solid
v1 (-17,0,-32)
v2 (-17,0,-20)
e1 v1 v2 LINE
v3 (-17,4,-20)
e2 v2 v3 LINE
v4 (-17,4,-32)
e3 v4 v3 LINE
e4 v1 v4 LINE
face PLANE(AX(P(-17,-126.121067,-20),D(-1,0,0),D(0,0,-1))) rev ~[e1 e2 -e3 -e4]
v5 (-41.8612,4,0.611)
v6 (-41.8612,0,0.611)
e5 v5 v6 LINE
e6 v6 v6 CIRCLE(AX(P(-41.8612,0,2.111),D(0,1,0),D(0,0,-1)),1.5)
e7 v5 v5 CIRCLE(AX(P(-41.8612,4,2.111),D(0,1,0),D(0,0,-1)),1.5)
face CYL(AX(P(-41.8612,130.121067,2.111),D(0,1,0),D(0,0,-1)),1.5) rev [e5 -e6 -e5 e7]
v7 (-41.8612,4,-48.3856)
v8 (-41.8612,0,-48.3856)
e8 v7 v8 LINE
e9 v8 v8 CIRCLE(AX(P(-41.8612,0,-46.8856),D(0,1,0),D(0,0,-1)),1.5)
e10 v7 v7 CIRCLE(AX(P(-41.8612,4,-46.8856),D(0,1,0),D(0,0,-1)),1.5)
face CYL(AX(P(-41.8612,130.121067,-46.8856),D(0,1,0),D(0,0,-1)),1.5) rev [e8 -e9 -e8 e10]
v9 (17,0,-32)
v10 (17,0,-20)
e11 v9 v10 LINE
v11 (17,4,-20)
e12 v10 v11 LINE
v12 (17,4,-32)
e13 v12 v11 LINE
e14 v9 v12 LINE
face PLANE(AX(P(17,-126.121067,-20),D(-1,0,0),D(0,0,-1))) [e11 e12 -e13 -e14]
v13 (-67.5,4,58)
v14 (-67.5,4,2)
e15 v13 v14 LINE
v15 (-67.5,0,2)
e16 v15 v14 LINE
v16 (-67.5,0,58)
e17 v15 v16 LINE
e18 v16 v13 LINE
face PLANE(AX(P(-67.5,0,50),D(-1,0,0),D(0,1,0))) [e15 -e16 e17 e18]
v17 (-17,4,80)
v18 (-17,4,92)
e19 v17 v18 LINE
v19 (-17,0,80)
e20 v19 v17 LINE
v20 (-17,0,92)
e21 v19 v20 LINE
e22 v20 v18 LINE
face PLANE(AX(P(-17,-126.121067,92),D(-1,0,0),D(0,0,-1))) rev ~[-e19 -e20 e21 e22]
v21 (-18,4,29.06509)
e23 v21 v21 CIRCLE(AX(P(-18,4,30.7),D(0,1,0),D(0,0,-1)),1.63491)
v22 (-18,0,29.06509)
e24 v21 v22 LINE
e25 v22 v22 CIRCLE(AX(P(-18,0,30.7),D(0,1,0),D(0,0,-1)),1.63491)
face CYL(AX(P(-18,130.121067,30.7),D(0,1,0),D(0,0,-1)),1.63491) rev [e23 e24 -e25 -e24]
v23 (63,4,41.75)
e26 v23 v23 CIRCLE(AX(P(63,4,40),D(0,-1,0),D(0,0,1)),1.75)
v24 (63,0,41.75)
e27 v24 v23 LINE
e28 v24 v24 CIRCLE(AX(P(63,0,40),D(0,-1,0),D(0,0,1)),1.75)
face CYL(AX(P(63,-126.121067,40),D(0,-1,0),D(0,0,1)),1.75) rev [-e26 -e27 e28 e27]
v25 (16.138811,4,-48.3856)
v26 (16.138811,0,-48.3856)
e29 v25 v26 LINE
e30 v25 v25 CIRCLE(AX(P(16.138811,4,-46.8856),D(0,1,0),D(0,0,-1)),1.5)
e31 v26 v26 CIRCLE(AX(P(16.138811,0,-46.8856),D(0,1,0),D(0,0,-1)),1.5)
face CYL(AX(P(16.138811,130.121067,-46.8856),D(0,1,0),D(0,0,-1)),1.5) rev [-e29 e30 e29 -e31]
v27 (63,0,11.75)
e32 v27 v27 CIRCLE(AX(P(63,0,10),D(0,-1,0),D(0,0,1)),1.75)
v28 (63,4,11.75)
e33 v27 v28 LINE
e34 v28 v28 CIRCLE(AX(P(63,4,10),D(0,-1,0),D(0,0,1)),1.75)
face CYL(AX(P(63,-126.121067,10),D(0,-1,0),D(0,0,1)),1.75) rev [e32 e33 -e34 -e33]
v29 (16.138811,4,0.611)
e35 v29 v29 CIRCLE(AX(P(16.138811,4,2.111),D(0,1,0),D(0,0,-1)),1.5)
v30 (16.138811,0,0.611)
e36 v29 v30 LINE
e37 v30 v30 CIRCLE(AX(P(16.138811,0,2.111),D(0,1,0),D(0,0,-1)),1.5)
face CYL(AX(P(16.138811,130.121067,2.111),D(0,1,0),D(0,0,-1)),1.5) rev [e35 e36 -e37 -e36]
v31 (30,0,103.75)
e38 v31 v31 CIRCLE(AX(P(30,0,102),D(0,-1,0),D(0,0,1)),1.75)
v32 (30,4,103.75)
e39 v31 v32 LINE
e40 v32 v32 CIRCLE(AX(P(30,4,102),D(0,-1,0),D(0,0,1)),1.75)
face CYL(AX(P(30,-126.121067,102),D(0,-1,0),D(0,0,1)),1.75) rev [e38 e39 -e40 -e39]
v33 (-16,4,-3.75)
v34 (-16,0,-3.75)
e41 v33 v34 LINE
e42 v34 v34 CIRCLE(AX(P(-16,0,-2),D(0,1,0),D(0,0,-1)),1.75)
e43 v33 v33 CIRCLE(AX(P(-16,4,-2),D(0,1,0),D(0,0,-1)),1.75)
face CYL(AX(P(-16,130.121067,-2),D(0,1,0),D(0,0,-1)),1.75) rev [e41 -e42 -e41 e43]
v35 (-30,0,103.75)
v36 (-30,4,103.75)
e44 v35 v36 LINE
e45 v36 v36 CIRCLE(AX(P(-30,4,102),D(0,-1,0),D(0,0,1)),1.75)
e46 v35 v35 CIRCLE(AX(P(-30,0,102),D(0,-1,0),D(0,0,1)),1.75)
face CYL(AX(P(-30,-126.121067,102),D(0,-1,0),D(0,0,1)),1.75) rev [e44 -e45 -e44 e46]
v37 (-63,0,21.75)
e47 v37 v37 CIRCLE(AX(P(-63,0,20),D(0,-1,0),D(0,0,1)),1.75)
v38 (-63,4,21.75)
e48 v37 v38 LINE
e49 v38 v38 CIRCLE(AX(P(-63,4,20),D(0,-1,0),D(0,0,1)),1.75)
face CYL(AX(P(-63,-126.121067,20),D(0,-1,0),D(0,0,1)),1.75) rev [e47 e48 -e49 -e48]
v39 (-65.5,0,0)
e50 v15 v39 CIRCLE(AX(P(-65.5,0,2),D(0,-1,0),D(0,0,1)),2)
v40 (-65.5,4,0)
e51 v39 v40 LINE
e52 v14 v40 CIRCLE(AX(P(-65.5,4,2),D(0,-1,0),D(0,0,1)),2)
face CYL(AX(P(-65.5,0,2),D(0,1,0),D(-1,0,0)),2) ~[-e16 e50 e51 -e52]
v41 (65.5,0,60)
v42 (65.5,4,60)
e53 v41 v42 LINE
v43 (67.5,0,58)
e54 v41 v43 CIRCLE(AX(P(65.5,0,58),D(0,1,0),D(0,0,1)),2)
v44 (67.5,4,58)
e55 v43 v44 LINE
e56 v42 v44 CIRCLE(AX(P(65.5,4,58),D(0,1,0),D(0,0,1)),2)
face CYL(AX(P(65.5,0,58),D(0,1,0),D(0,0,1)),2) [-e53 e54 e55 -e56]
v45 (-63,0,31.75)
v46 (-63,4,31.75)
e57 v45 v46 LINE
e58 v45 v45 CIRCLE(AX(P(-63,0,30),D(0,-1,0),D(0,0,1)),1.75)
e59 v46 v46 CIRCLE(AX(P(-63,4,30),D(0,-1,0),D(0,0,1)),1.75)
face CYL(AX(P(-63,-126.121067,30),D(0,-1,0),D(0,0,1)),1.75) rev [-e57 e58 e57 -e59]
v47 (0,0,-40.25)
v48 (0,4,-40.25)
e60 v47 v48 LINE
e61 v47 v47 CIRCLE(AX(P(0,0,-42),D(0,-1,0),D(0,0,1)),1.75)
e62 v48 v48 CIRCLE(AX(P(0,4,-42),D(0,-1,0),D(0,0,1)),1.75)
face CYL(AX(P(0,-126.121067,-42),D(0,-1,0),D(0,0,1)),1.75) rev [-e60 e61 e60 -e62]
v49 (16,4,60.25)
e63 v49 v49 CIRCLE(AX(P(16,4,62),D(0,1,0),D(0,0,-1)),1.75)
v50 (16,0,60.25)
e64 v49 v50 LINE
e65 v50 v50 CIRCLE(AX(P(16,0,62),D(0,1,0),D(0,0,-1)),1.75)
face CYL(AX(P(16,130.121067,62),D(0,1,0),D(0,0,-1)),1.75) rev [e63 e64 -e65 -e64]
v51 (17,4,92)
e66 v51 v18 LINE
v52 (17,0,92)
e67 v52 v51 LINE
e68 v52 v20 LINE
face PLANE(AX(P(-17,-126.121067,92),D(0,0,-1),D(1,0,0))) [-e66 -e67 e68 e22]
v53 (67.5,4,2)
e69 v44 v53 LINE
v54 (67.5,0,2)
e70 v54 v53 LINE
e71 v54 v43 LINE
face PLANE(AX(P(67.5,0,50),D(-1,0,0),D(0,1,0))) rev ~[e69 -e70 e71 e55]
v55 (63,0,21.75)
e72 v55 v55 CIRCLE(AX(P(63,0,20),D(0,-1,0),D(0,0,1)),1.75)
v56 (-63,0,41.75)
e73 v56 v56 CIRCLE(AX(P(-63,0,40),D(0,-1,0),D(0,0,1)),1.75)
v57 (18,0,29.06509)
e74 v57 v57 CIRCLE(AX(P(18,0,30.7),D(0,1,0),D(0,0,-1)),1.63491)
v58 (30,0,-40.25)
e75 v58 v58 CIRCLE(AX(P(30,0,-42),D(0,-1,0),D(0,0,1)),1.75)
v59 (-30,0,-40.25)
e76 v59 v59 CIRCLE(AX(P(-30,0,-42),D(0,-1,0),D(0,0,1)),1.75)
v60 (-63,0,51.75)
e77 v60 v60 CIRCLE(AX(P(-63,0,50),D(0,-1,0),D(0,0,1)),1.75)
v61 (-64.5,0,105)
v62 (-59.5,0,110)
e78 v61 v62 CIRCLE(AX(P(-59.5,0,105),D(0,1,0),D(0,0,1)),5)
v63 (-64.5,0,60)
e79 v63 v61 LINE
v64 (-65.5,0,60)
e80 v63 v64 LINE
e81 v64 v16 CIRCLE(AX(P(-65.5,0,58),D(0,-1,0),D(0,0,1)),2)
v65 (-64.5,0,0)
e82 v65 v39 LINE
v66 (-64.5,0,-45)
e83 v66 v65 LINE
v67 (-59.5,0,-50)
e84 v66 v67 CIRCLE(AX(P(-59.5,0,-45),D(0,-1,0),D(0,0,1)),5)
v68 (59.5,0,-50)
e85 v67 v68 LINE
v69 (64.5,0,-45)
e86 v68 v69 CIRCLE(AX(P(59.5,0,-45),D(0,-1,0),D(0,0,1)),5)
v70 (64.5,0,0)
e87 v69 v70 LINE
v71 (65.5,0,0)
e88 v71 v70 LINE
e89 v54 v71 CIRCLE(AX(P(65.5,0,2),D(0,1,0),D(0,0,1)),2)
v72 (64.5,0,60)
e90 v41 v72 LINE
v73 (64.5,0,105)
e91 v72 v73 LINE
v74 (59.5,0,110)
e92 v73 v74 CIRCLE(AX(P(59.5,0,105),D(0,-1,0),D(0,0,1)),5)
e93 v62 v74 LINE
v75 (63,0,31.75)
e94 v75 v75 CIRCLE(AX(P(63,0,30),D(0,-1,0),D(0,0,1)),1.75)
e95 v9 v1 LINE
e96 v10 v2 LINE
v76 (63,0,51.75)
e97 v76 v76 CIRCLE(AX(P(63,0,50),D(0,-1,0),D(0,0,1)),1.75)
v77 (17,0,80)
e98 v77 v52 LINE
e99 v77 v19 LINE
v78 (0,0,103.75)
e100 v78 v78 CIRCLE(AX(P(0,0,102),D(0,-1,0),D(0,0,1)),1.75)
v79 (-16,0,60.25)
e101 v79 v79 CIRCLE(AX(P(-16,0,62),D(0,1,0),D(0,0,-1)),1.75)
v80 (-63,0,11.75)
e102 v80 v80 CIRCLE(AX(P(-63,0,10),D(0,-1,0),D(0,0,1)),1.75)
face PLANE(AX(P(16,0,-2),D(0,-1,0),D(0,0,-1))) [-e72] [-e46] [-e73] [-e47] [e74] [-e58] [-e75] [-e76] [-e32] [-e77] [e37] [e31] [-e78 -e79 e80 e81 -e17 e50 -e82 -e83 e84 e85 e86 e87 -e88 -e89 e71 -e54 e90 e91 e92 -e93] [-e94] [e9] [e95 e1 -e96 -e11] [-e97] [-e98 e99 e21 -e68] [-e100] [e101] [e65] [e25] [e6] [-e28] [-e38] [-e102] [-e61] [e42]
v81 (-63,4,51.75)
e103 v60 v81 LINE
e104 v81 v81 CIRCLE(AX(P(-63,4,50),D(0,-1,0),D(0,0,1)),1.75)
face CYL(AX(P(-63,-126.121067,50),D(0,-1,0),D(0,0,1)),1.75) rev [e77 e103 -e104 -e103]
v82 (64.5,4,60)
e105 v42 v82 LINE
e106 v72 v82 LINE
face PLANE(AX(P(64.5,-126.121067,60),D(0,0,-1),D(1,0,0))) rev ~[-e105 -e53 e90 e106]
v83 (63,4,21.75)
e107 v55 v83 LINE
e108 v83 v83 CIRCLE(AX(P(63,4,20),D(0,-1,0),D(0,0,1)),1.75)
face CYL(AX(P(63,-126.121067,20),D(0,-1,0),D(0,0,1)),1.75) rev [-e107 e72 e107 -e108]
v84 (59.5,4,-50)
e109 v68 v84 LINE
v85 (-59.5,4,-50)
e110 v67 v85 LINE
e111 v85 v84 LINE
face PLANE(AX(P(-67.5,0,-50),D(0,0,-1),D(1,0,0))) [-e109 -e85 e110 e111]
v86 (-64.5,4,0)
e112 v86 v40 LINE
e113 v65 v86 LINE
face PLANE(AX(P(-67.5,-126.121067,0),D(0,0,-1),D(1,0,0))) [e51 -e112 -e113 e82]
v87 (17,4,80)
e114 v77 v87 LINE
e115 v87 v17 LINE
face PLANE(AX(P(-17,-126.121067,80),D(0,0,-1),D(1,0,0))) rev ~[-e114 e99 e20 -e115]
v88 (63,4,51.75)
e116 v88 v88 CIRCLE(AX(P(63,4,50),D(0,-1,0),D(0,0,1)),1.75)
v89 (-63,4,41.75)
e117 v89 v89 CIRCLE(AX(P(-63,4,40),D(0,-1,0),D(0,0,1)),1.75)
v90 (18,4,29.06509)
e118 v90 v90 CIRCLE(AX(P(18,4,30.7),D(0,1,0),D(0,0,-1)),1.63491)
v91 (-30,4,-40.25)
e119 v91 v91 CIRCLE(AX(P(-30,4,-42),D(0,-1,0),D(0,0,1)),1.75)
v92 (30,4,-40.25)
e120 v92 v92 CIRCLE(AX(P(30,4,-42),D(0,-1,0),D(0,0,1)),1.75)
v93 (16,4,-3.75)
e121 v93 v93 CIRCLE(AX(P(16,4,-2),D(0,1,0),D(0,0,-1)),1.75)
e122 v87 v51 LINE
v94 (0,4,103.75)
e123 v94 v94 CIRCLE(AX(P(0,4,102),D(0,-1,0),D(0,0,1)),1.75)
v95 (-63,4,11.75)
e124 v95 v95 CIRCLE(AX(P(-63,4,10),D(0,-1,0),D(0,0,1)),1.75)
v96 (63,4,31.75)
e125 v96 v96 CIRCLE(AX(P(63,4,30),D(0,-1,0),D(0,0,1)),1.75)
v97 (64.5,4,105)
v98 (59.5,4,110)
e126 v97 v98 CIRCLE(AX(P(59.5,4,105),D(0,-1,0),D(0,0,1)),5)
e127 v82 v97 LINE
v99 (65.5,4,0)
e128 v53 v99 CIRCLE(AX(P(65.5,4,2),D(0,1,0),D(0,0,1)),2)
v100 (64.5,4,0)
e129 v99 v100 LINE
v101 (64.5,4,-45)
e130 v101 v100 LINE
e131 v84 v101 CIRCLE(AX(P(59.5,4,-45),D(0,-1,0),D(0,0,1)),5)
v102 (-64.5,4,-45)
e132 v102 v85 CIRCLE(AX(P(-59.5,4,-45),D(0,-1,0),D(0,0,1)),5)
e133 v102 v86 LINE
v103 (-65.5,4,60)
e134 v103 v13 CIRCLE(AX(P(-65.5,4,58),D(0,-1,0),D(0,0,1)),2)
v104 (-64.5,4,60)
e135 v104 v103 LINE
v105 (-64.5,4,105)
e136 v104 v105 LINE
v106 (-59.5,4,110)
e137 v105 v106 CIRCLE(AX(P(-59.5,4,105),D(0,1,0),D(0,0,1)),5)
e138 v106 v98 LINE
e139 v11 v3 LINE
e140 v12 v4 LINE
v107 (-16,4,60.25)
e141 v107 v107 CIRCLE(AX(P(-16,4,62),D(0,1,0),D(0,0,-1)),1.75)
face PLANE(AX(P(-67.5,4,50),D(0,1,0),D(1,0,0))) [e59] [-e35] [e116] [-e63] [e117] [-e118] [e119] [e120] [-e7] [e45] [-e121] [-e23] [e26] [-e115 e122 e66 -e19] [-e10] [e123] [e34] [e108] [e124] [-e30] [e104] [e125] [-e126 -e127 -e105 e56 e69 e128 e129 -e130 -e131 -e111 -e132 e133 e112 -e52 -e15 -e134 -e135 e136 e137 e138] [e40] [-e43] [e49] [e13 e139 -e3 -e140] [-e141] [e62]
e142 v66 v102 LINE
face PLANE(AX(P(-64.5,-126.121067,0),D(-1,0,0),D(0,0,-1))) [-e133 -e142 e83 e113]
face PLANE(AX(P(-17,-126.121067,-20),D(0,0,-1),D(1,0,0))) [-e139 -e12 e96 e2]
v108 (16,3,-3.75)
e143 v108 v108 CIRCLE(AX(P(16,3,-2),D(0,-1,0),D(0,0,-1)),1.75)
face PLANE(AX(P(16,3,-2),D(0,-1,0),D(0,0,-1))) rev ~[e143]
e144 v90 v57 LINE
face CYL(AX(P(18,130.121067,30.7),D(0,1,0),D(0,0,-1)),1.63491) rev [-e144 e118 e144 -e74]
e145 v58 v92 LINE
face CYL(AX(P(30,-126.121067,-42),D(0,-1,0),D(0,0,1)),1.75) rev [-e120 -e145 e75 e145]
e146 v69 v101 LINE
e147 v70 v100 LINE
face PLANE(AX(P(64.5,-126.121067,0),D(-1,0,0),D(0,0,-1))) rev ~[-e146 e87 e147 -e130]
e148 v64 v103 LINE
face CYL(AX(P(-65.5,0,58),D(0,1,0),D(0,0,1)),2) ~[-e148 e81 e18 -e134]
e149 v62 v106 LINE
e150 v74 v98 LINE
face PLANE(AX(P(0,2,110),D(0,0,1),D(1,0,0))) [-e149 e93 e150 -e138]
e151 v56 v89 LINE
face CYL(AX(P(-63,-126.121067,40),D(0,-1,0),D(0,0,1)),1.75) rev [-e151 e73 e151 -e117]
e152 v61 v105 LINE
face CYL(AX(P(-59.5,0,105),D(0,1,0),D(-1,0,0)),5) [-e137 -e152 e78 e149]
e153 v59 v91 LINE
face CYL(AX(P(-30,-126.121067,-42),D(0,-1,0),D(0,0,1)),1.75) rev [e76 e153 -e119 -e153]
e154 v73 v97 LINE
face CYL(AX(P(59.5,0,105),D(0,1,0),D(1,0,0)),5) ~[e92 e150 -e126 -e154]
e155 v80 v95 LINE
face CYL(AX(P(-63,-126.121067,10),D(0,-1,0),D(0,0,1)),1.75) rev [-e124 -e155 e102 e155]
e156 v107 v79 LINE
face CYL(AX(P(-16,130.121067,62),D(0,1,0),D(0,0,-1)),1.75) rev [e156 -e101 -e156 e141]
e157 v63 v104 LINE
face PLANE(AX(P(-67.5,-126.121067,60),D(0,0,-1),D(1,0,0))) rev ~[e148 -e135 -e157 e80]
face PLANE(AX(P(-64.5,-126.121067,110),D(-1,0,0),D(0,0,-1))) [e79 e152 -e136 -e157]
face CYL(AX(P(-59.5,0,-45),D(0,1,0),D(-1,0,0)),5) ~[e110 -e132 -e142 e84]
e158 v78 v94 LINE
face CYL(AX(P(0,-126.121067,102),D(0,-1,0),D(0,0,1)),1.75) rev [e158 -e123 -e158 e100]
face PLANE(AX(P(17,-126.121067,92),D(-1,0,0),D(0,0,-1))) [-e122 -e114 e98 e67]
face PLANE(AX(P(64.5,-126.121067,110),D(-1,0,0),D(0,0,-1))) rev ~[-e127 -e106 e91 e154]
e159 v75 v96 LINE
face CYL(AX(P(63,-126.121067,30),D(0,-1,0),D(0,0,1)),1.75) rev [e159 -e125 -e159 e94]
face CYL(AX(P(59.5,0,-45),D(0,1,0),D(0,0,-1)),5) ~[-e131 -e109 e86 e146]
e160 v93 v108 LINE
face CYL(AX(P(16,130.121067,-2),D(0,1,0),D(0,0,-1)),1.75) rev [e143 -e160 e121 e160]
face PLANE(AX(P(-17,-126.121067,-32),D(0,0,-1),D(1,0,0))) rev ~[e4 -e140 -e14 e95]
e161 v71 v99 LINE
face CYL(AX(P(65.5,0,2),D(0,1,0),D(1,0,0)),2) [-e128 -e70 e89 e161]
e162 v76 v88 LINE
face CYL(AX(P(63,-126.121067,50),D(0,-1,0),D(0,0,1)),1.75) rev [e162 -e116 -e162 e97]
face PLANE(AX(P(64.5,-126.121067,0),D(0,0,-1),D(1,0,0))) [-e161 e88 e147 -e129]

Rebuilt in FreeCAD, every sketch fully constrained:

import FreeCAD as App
import Part
import Sketcher
Q = App.Units.Quantity


def edges_at(feature, points):
    """Names of the edges that pass closest to the given points."""
    edges = feature.Shape.Edges
    near = lambda p: min(range(len(edges)), key=lambda i: edges[i].distToShape(Part.Vertex(*p))[0])
    return sorted({f"Edge{near(p) + 1}" for p in points})

doc = App.newDocument("Part")
body = doc.addObject("PartDesign::Body", "Body")

sketch1 = doc.addObject("Sketcher::SketchObject", "Sketch")
body.addObject(sketch1)
sketch1.AttachmentSupport = (doc.XZ_Plane, [""])
sketch1.MapMode = "FlatFace"
sketch1.addGeometry(Part.LineSegment(App.Vector(-68, -50, 0), App.Vector(-68, 50, 0)), False)
sketch1.addGeometry(Part.LineSegment(App.Vector(-68, 50, 0), App.Vector(68, 50, 0)), False)
sketch1.addGeometry(Part.LineSegment(App.Vector(68, 50, 0), App.Vector(68, -50, 0)), False)
sketch1.addGeometry(Part.LineSegment(App.Vector(68, -50, 0), App.Vector(-68, -50, 0)), False)
sketch1.addConstraint(Sketcher.Constraint("Coincident", 0, 2, 1, 1))
sketch1.addConstraint(Sketcher.Constraint("Coincident", 1, 2, 2, 1))
sketch1.addConstraint(Sketcher.Constraint("Coincident", 2, 2, 3, 1))
sketch1.addConstraint(Sketcher.Constraint("Coincident", 3, 2, 0, 1))
sketch1.addConstraint(Sketcher.Constraint("Vertical", 0))
sketch1.addConstraint(Sketcher.Constraint("Horizontal", 1))
sketch1.addConstraint(Sketcher.Constraint("Vertical", 2))
sketch1.addConstraint(Sketcher.Constraint("Horizontal", 3))
sketch1.addConstraint(Sketcher.Constraint("Symmetric", 0, 2, 2, 2, -1, 1))
sketch1.addConstraint(Sketcher.Constraint("DistanceX", 1, 1, 1, 2, Q("135 mm")))
sketch1.addConstraint(Sketcher.Constraint("DistanceY", 0, 1, 0, 2, Q("100 mm")))
pad1 = doc.addObject("PartDesign::Pad", "Pad")
body.addObject(pad1)
pad1.Profile = sketch1
pad1.Length = 4
pad1.Reversed = True

sketch2 = doc.addObject("Sketcher::SketchObject", "Sketch001")
body.addObject(sketch2)
sketch2.AttachmentSupport = (doc.XY_Plane, [""])
sketch2.MapMode = "FlatFace"
sketch2.AttachmentOffset = App.Placement(App.Vector(0, 0, 50), App.Rotation())
sketch2.addGeometry(Part.LineSegment(App.Vector(-67.5, 4, 0), App.Vector(-67.5, 0, 0)), False)
sketch2.addGeometry(Part.LineSegment(App.Vector(-67.5, 0, 0), App.Vector(67.5, 0, 0)), False)
sketch2.addGeometry(Part.LineSegment(App.Vector(67.5, 0, 0), App.Vector(67.5, 4, 0)), False)
sketch2.addGeometry(Part.LineSegment(App.Vector(67.5, 4, 0), App.Vector(-67.5, 4, 0)), False)
sketch2.addConstraint(Sketcher.Constraint("Coincident", 0, 2, 1, 1))
sketch2.addConstraint(Sketcher.Constraint("Coincident", 1, 2, 2, 1))
sketch2.addConstraint(Sketcher.Constraint("Coincident", 2, 2, 3, 1))
sketch2.addConstraint(Sketcher.Constraint("Coincident", 3, 2, 0, 1))
sketch2.addConstraint(Sketcher.Constraint("Vertical", 0))
sketch2.addConstraint(Sketcher.Constraint("Horizontal", 1))
sketch2.addConstraint(Sketcher.Constraint("Vertical", 2))
sketch2.addConstraint(Sketcher.Constraint("Horizontal", 3))
sketch2.addConstraint(Sketcher.Constraint("Symmetric", 0, 2, 1, 2, -1, 1))
sketch2.addConstraint(Sketcher.Constraint("DistanceX", 1, 1, 1, 2, Q("135 mm")))
sketch2.addConstraint(Sketcher.Constraint("DistanceY", 0, 2, 0, 1, Q("4 mm")))
pad2 = doc.addObject("PartDesign::Pad", "Pad001")
body.addObject(pad2)
pad2.Profile = sketch2
pad2.Length = 60

sketch3 = doc.addObject("Sketcher::SketchObject", "Sketch002")
body.addObject(sketch3)
sketch3.AttachmentSupport = (doc.XZ_Plane, [""])
sketch3.MapMode = "FlatFace"
sketch3.AttachmentOffset = App.Placement(App.Vector(0, 0, -4), App.Rotation())
sketch3.addGeometry(Part.LineSegment(App.Vector(-67.5, -50, 0), App.Vector(-67.5, 0, 0)), False)
sketch3.addGeometry(Part.LineSegment(App.Vector(-67.5, 0, 0), App.Vector(-64.5, 0, 0)), False)
sketch3.addGeometry(Part.LineSegment(App.Vector(-64.5, 0, 0), App.Vector(-64.5, -50, 0)), False)
sketch3.addGeometry(Part.LineSegment(App.Vector(-64.5, -50, 0), App.Vector(-67.5, -50, 0)), False)
sketch3.addGeometry(Part.LineSegment(App.Vector(64.5, -50, 0), App.Vector(64.5, 0, 0)), False)
sketch3.addGeometry(Part.LineSegment(App.Vector(64.5, 0, 0), App.Vector(67.5, 0, 0)), False)
sketch3.addGeometry(Part.LineSegment(App.Vector(67.5, 0, 0), App.Vector(67.5, -50, 0)), False)
sketch3.addGeometry(Part.LineSegment(App.Vector(67.5, -50, 0), App.Vector(64.5, -50, 0)), False)
sketch3.addGeometry(Part.LineSegment(App.Vector(-67.5, 60, 0), App.Vector(-67.5, 110, 0)), False)
sketch3.addGeometry(Part.LineSegment(App.Vector(-67.5, 110, 0), App.Vector(-64.5, 110, 0)), False)
sketch3.addGeometry(Part.LineSegment(App.Vector(-64.5, 110, 0), App.Vector(-64.5, 60, 0)), False)
sketch3.addGeometry(Part.LineSegment(App.Vector(-64.5, 60, 0), App.Vector(-67.5, 60, 0)), False)
sketch3.addGeometry(Part.LineSegment(App.Vector(64.5, 60, 0), App.Vector(64.5, 110, 0)), False)
sketch3.addGeometry(Part.LineSegment(App.Vector(64.5, 110, 0), App.Vector(67.5, 110, 0)), False)
sketch3.addGeometry(Part.LineSegment(App.Vector(67.5, 110, 0), App.Vector(67.5, 60, 0)), False)
sketch3.addGeometry(Part.LineSegment(App.Vector(67.5, 60, 0), App.Vector(64.5, 60, 0)), False)
sketch3.addConstraint(Sketcher.Constraint("Coincident", 0, 2, 1, 1))
sketch3.addConstraint(Sketcher.Constraint("Coincident", 1, 2, 2, 1))
sketch3.addConstraint(Sketcher.Constraint("Coincident", 2, 2, 3, 1))
sketch3.addConstraint(Sketcher.Constraint("Coincident", 3, 2, 0, 1))
sketch3.addConstraint(Sketcher.Constraint("Coincident", 4, 2, 5, 1))
sketch3.addConstraint(Sketcher.Constraint("Coincident", 5, 2, 6, 1))
sketch3.addConstraint(Sketcher.Constraint("Coincident", 6, 2, 7, 1))
sketch3.addConstraint(Sketcher.Constraint("Coincident", 7, 2, 4, 1))
sketch3.addConstraint(Sketcher.Constraint("Coincident", 8, 2, 9, 1))
sketch3.addConstraint(Sketcher.Constraint("Coincident", 9, 2, 10, 1))
sketch3.addConstraint(Sketcher.Constraint("Coincident", 10, 2, 11, 1))
sketch3.addConstraint(Sketcher.Constraint("Coincident", 11, 2, 8, 1))
sketch3.addConstraint(Sketcher.Constraint("Coincident", 12, 2, 13, 1))
sketch3.addConstraint(Sketcher.Constraint("Coincident", 13, 2, 14, 1))
sketch3.addConstraint(Sketcher.Constraint("Coincident", 14, 2, 15, 1))
sketch3.addConstraint(Sketcher.Constraint("Coincident", 15, 2, 12, 1))
sketch3.addConstraint(Sketcher.Constraint("Vertical", 0))
sketch3.addConstraint(Sketcher.Constraint("Horizontal", 1))
sketch3.addConstraint(Sketcher.Constraint("Vertical", 2))
sketch3.addConstraint(Sketcher.Constraint("Horizontal", 3))
sketch3.addConstraint(Sketcher.Constraint("Vertical", 4))
sketch3.addConstraint(Sketcher.Constraint("Horizontal", 5))
sketch3.addConstraint(Sketcher.Constraint("Vertical", 6))
sketch3.addConstraint(Sketcher.Constraint("Horizontal", 7))
sketch3.addConstraint(Sketcher.Constraint("Vertical", 8))
sketch3.addConstraint(Sketcher.Constraint("Horizontal", 9))
sketch3.addConstraint(Sketcher.Constraint("Vertical", 10))
sketch3.addConstraint(Sketcher.Constraint("Horizontal", 11))
sketch3.addConstraint(Sketcher.Constraint("Vertical", 12))
sketch3.addConstraint(Sketcher.Constraint("Horizontal", 13))
sketch3.addConstraint(Sketcher.Constraint("Vertical", 14))
sketch3.addConstraint(Sketcher.Constraint("Horizontal", 15))
sketch3.addConstraint(Sketcher.Constraint("Symmetric", 1, 2, 4, 2, -1, 1))
sketch3.addConstraint(Sketcher.Constraint("Symmetric", 0, 2, 5, 2, -2))
sketch3.addConstraint(Sketcher.Constraint("Symmetric", 9, 2, 12, 2, -2))
sketch3.addConstraint(Sketcher.Constraint("Symmetric", 11, 2, 14, 2, -2))
sketch3.addConstraint(Sketcher.Constraint("Horizontal", 3, 2, 6, 2))
sketch3.addConstraint(Sketcher.Constraint("Vertical", 3, 2, 8, 2))
sketch3.addConstraint(Sketcher.Constraint("Vertical", 2, 2, 9, 2))
sketch3.addConstraint(Sketcher.Constraint("Equal", 6, 8))
sketch3.addConstraint(Sketcher.Constraint("DistanceX", 1, 1, 1, 2, Q("3 mm")))
sketch3.addConstraint(Sketcher.Constraint("DistanceY", 0, 1, 0, 2, Q("50 mm")))
sketch3.addConstraint(Sketcher.Constraint("DistanceY", -1, 1, 8, 2, Q("110 mm")))
sketch3.addConstraint(Sketcher.Constraint("DistanceX", 1, 2, 4, 2, Q("129 mm")))
pocket1 = doc.addObject("PartDesign::Pocket", "Pocket")
body.addObject(pocket1)
pocket1.Profile = sketch3
pocket1.Type = "ThroughAll"
pocket1.Midplane = True
doc.recompute()

fillet = doc.addObject("PartDesign::Fillet", "Fillet")
body.addObject(fillet)
fillet.Base = (pocket1, edges_at(pocket1, [
    (64.5, 2, -50),
    (-64.5, 2, 110),
    (64.5, 2, 110),
    (-64.5, 2, -50),
]))
fillet.Radius = 5
doc.recompute()

fillet2 = doc.addObject("PartDesign::Fillet", "Fillet001")
body.addObject(fillet2)
fillet2.Base = (fillet, edges_at(fillet, [
    (67.5, 2, 0),
    (-67.5, 2, 60),
    (67.5, 2, 60),
    (-67.5, 2, 0),
]))
fillet2.Radius = 2

sketch4 = doc.addObject("Sketcher::SketchObject", "Sketch003")
body.addObject(sketch4)
sketch4.AttachmentSupport = (doc.XZ_Plane, [""])
sketch4.MapMode = "FlatFace"
sketch4.AttachmentOffset = App.Placement(App.Vector(0, 0, -4), App.Rotation())
sketch4.addGeometry(Part.Circle(App.Vector(-30, 102, 0), App.Vector(0, 0, 1), 1.8), False)
sketch4.addGeometry(Part.Circle(App.Vector(0, 102, 0), App.Vector(0, 0, 1), 1.8), False)
sketch4.addGeometry(Part.Circle(App.Vector(30, 102, 0), App.Vector(0, 0, 1), 1.8), False)
sketch4.addGeometry(Part.Circle(App.Vector(-30, -42, 0), App.Vector(0, 0, 1), 1.8), False)
sketch4.addGeometry(Part.Circle(App.Vector(0, -42, 0), App.Vector(0, 0, 1), 1.8), False)
sketch4.addGeometry(Part.Circle(App.Vector(30, -42, 0), App.Vector(0, 0, 1), 1.8), False)
sketch4.addConstraint(Sketcher.Constraint("Equal", 0, 1))
sketch4.addConstraint(Sketcher.Constraint("Equal", 1, 2))
sketch4.addConstraint(Sketcher.Constraint("Equal", 2, 3))
sketch4.addConstraint(Sketcher.Constraint("Equal", 3, 4))
sketch4.addConstraint(Sketcher.Constraint("Equal", 4, 5))
sketch4.addConstraint(Sketcher.Constraint("Symmetric", 0, 3, 2, 3, -2))
sketch4.addConstraint(Sketcher.Constraint("Symmetric", 3, 3, 5, 3, -2))
sketch4.addConstraint(Sketcher.Constraint("PointOnObject", 1, 3, -2))
sketch4.addConstraint(Sketcher.Constraint("PointOnObject", 4, 3, -2))
sketch4.addConstraint(Sketcher.Constraint("Horizontal", 0, 3, 1, 3))
sketch4.addConstraint(Sketcher.Constraint("Horizontal", 3, 3, 4, 3))
sketch4.addConstraint(Sketcher.Constraint("Vertical", 0, 3, 3, 3))
sketch4.addConstraint(Sketcher.Constraint("Diameter", 0, Q("3.5 mm")))
sketch4.addConstraint(Sketcher.Constraint("DistanceX", 0, 3, -1, 1, Q("30 mm")))
sketch4.addConstraint(Sketcher.Constraint("DistanceY", -1, 1, 0, 3, Q("102 mm")))
sketch4.addConstraint(Sketcher.Constraint("DistanceY", 3, 3, -1, 1, Q("42 mm")))
pocket2 = doc.addObject("PartDesign::Pocket", "Pocket001")
body.addObject(pocket2)
pocket2.Profile = sketch4
pocket2.Type = "ThroughAll"
pocket2.Midplane = True

sketch5 = doc.addObject("Sketcher::SketchObject", "Sketch004")
body.addObject(sketch5)
sketch5.AttachmentSupport = (doc.XZ_Plane, [""])
sketch5.MapMode = "FlatFace"
sketch5.AttachmentOffset = App.Placement(App.Vector(0, 0, -4), App.Rotation())
sketch5.addGeometry(Part.LineSegment(App.Vector(-17, 80, 0), App.Vector(-17, 92, 0)), False)
sketch5.addGeometry(Part.LineSegment(App.Vector(-17, 92, 0), App.Vector(17, 92, 0)), False)
sketch5.addGeometry(Part.LineSegment(App.Vector(17, 92, 0), App.Vector(17, 80, 0)), False)
sketch5.addGeometry(Part.LineSegment(App.Vector(17, 80, 0), App.Vector(-17, 80, 0)), False)
sketch5.addGeometry(Part.LineSegment(App.Vector(-17, -32, 0), App.Vector(-17, -20, 0)), False)
sketch5.addGeometry(Part.LineSegment(App.Vector(-17, -20, 0), App.Vector(17, -20, 0)), False)
sketch5.addGeometry(Part.LineSegment(App.Vector(17, -20, 0), App.Vector(17, -32, 0)), False)
sketch5.addGeometry(Part.LineSegment(App.Vector(17, -32, 0), App.Vector(-17, -32, 0)), False)
sketch5.addConstraint(Sketcher.Constraint("Coincident", 0, 2, 1, 1))
sketch5.addConstraint(Sketcher.Constraint("Coincident", 1, 2, 2, 1))
sketch5.addConstraint(Sketcher.Constraint("Coincident", 2, 2, 3, 1))
sketch5.addConstraint(Sketcher.Constraint("Coincident", 3, 2, 0, 1))
sketch5.addConstraint(Sketcher.Constraint("Coincident", 4, 2, 5, 1))
sketch5.addConstraint(Sketcher.Constraint("Coincident", 5, 2, 6, 1))
sketch5.addConstraint(Sketcher.Constraint("Coincident", 6, 2, 7, 1))
sketch5.addConstraint(Sketcher.Constraint("Coincident", 7, 2, 4, 1))
sketch5.addConstraint(Sketcher.Constraint("Vertical", 0))
sketch5.addConstraint(Sketcher.Constraint("Horizontal", 1))
sketch5.addConstraint(Sketcher.Constraint("Vertical", 2))
sketch5.addConstraint(Sketcher.Constraint("Horizontal", 3))
sketch5.addConstraint(Sketcher.Constraint("Vertical", 4))
sketch5.addConstraint(Sketcher.Constraint("Horizontal", 5))
sketch5.addConstraint(Sketcher.Constraint("Vertical", 6))
sketch5.addConstraint(Sketcher.Constraint("Horizontal", 7))
sketch5.addConstraint(Sketcher.Constraint("Vertical", 3, 2, 4, 2))
sketch5.addConstraint(Sketcher.Constraint("Vertical", 2, 2, 5, 2))
sketch5.addConstraint(Sketcher.Constraint("Equal", 2, 4))
sketch5.addConstraint(Sketcher.Constraint("DistanceX", 1, 1, 1, 2, Q("34 mm")))
sketch5.addConstraint(Sketcher.Constraint("DistanceY", 0, 1, 0, 2, Q("12 mm")))
sketch5.addConstraint(Sketcher.Constraint("DistanceX", 0, 2, -1, 1, Q("17 mm")))
sketch5.addConstraint(Sketcher.Constraint("DistanceY", -1, 1, 0, 2, Q("92 mm")))
sketch5.addConstraint(Sketcher.Constraint("DistanceY", 4, 2, -1, 1, Q("20 mm")))
pocket3 = doc.addObject("PartDesign::Pocket", "Pocket002")
body.addObject(pocket3)
pocket3.Profile = sketch5
pocket3.Type = "ThroughAll"
pocket3.Midplane = True

sketch6 = doc.addObject("Sketcher::SketchObject", "Sketch005")
body.addObject(sketch6)
sketch6.AttachmentSupport = (doc.XZ_Plane, [""])
sketch6.MapMode = "FlatFace"
sketch6.addGeometry(Part.Circle(App.Vector(-16, -2, 0), App.Vector(0, 0, 1), 1.8), False)
sketch6.addGeometry(Part.Circle(App.Vector(16, -2, 0), App.Vector(0, 0, 1), 1.8), False)
sketch6.addGeometry(Part.Circle(App.Vector(16, 62, 0), App.Vector(0, 0, 1), 1.8), False)
sketch6.addGeometry(Part.Circle(App.Vector(-16, 62, 0), App.Vector(0, 0, 1), 1.8), False)
sketch6.addConstraint(Sketcher.Constraint("Equal", 0, 1))
sketch6.addConstraint(Sketcher.Constraint("Equal", 1, 2))
sketch6.addConstraint(Sketcher.Constraint("Equal", 2, 3))
sketch6.addConstraint(Sketcher.Constraint("Symmetric", 0, 3, 1, 3, -2))
sketch6.addConstraint(Sketcher.Constraint("Symmetric", 2, 3, 3, 3, -2))
sketch6.addConstraint(Sketcher.Constraint("Vertical", 1, 3, 2, 3))
sketch6.addConstraint(Sketcher.Constraint("Diameter", 0, Q("3.5 mm")))
sketch6.addConstraint(Sketcher.Constraint("DistanceX", 0, 3, -1, 1, Q("16 mm")))
sketch6.addConstraint(Sketcher.Constraint("DistanceY", 0, 3, -1, 1, Q("2 mm")))
sketch6.addConstraint(Sketcher.Constraint("DistanceY", -1, 1, 2, 3, Q("62 mm")))
pocket4 = doc.addObject("PartDesign::Pocket", "Pocket003")
body.addObject(pocket4)
pocket4.Profile = sketch6
pocket4.Type = "ThroughAll"
pocket4.Midplane = True

sketch7 = doc.addObject("Sketcher::SketchObject", "Sketch006")
body.addObject(sketch7)
sketch7.AttachmentSupport = (doc.XZ_Plane, [""])
sketch7.MapMode = "FlatFace"
sketch7.addGeometry(Part.Circle(App.Vector(18, 30.7, 0), App.Vector(0, 0, 1), 1.6), False)
sketch7.addGeometry(Part.Circle(App.Vector(-18, 30.7, 0), App.Vector(0, 0, 1), 1.6), False)
sketch7.addConstraint(Sketcher.Constraint("Equal", 0, 1))
sketch7.addConstraint(Sketcher.Constraint("Symmetric", 0, 3, 1, 3, -2))
sketch7.addConstraint(Sketcher.Constraint("DistanceX", -1, 1, 0, 3, Q("18 mm")))
sketch7.addConstraint(Sketcher.Constraint("DistanceY", -1, 1, 0, 3, Q("30.7 mm")))
sketch7.addConstraint(Sketcher.Constraint("Diameter", 0, Q("3.26982 mm")))
pocket5 = doc.addObject("PartDesign::Pocket", "Pocket004")
body.addObject(pocket5)
pocket5.Profile = sketch7
pocket5.Type = "ThroughAll"
pocket5.Midplane = True

sketch8 = doc.addObject("Sketcher::SketchObject", "Sketch007")
body.addObject(sketch8)
sketch8.AttachmentSupport = (doc.XZ_Plane, [""])
sketch8.MapMode = "FlatFace"
sketch8.addGeometry(Part.Circle(App.Vector(-41.9, 2.1, 0), App.Vector(0, 0, 1), 1.5), False)
sketch8.addGeometry(Part.Circle(App.Vector(-41.9, -46.9, 0), App.Vector(0, 0, 1), 1.5), False)
sketch8.addGeometry(Part.Circle(App.Vector(16.1, 2.1, 0), App.Vector(0, 0, 1), 1.5), False)
sketch8.addGeometry(Part.Circle(App.Vector(16.1, -46.9, 0), App.Vector(0, 0, 1), 1.5), False)
sketch8.addConstraint(Sketcher.Constraint("Equal", 0, 1))
sketch8.addConstraint(Sketcher.Constraint("Equal", 1, 2))
sketch8.addConstraint(Sketcher.Constraint("Equal", 2, 3))
sketch8.addConstraint(Sketcher.Constraint("Horizontal", 0, 3, 2, 3))
sketch8.addConstraint(Sketcher.Constraint("Horizontal", 1, 3, 3, 3))
sketch8.addConstraint(Sketcher.Constraint("Vertical", 0, 3, 1, 3))
sketch8.addConstraint(Sketcher.Constraint("Vertical", 2, 3, 3, 3))
sketch8.addConstraint(Sketcher.Constraint("Diameter", 0, Q("3 mm")))
sketch8.addConstraint(Sketcher.Constraint("DistanceY", -1, 1, 0, 3, Q("2.111 mm")))
sketch8.addConstraint(Sketcher.Constraint("DistanceX", 0, 3, -1, 1, Q("41.8612 mm")))
sketch8.addConstraint(Sketcher.Constraint("DistanceY", 1, 3, -1, 1, Q("46.8856 mm")))
sketch8.addConstraint(Sketcher.Constraint("DistanceX", -1, 1, 2, 3, Q("16.138811 mm")))
pocket6 = doc.addObject("PartDesign::Pocket", "Pocket005")
body.addObject(pocket6)
pocket6.Profile = sketch8
pocket6.Type = "ThroughAll"
pocket6.Midplane = True

sketch9 = doc.addObject("Sketcher::SketchObject", "Sketch008")
body.addObject(sketch9)
sketch9.AttachmentSupport = (doc.XZ_Plane, [""])
sketch9.MapMode = "FlatFace"
sketch9.addGeometry(Part.Circle(App.Vector(16, -2, 0), App.Vector(0, 0, 1), 1.8), False)
sketch9.addConstraint(Sketcher.Constraint("Diameter", 0, Q("3.5 mm")))
sketch9.addConstraint(Sketcher.Constraint("DistanceX", -1, 1, 0, 3, Q("16 mm")))
sketch9.addConstraint(Sketcher.Constraint("DistanceY", 0, 3, -1, 1, Q("2 mm")))
pad3 = doc.addObject("PartDesign::Pad", "Pad002")
body.addObject(pad3)
pad3.Profile = sketch9
pad3.Length = 3
pad3.Reversed = True

sketch10 = doc.addObject("Sketcher::SketchObject", "Sketch009")
body.addObject(sketch10)
sketch10.AttachmentSupport = (doc.XZ_Plane, [""])
sketch10.MapMode = "FlatFace"
sketch10.AttachmentOffset = App.Placement(App.Vector(0, 0, -4), App.Rotation())
sketch10.addGeometry(Part.Circle(App.Vector(63, 10, 0), App.Vector(0, 0, 1), 1.8), False)
sketch10.addGeometry(Part.Circle(App.Vector(63, 20, 0), App.Vector(0, 0, 1), 1.8), False)
sketch10.addGeometry(Part.Circle(App.Vector(63, 30, 0), App.Vector(0, 0, 1), 1.8), False)
sketch10.addGeometry(Part.Circle(App.Vector(63, 40, 0), App.Vector(0, 0, 1), 1.8), False)
sketch10.addGeometry(Part.Circle(App.Vector(63, 50, 0), App.Vector(0, 0, 1), 1.8), False)
sketch10.addGeometry(Part.Circle(App.Vector(-63, 10, 0), App.Vector(0, 0, 1), 1.8), False)
sketch10.addGeometry(Part.Circle(App.Vector(-63, 20, 0), App.Vector(0, 0, 1), 1.8), False)
sketch10.addGeometry(Part.Circle(App.Vector(-63, 30, 0), App.Vector(0, 0, 1), 1.8), False)
sketch10.addGeometry(Part.Circle(App.Vector(-63, 40, 0), App.Vector(0, 0, 1), 1.8), False)
sketch10.addGeometry(Part.Circle(App.Vector(-63, 50, 0), App.Vector(0, 0, 1), 1.8), False)
sketch10.addConstraint(Sketcher.Constraint("Equal", 0, 1))
sketch10.addConstraint(Sketcher.Constraint("Equal", 1, 2))
sketch10.addConstraint(Sketcher.Constraint("Equal", 2, 3))
sketch10.addConstraint(Sketcher.Constraint("Equal", 3, 4))
sketch10.addConstraint(Sketcher.Constraint("Equal", 4, 5))
sketch10.addConstraint(Sketcher.Constraint("Equal", 5, 6))
sketch10.addConstraint(Sketcher.Constraint("Equal", 6, 7))
sketch10.addConstraint(Sketcher.Constraint("Equal", 7, 8))
sketch10.addConstraint(Sketcher.Constraint("Equal", 8, 9))
sketch10.addConstraint(Sketcher.Constraint("Symmetric", 0, 3, 5, 3, -2))
sketch10.addConstraint(Sketcher.Constraint("Symmetric", 1, 3, 6, 3, -2))
sketch10.addConstraint(Sketcher.Constraint("Symmetric", 2, 3, 7, 3, -2))
sketch10.addConstraint(Sketcher.Constraint("Symmetric", 3, 3, 8, 3, -2))
sketch10.addConstraint(Sketcher.Constraint("Symmetric", 4, 3, 9, 3, -2))
sketch10.addConstraint(Sketcher.Constraint("Vertical", 0, 3, 1, 3))
sketch10.addConstraint(Sketcher.Constraint("Vertical", 1, 3, 2, 3))
sketch10.addConstraint(Sketcher.Constraint("Vertical", 2, 3, 3, 3))
sketch10.addConstraint(Sketcher.Constraint("Vertical", 3, 3, 4, 3))
sketch10.addConstraint(Sketcher.Constraint("Diameter", 0, Q("3.5 mm")))
sketch10.addConstraint(Sketcher.Constraint("DistanceX", -1, 1, 0, 3, Q("63 mm")))
sketch10.addConstraint(Sketcher.Constraint("DistanceY", -1, 1, 0, 3, Q("10 mm")))
sketch10.addConstraint(Sketcher.Constraint("DistanceY", -1, 1, 1, 3, Q("20 mm")))
sketch10.addConstraint(Sketcher.Constraint("DistanceY", -1, 1, 2, 3, Q("30 mm")))
sketch10.addConstraint(Sketcher.Constraint("DistanceY", -1, 1, 3, 3, Q("40 mm")))
sketch10.addConstraint(Sketcher.Constraint("DistanceY", -1, 1, 4, 3, Q("50 mm")))
pocket7 = doc.addObject("PartDesign::Pocket", "Pocket006")
body.addObject(pocket7)
pocket7.Profile = sketch10
pocket7.Type = "ThroughAll"
pocket7.Midplane = True

doc.recompute()
